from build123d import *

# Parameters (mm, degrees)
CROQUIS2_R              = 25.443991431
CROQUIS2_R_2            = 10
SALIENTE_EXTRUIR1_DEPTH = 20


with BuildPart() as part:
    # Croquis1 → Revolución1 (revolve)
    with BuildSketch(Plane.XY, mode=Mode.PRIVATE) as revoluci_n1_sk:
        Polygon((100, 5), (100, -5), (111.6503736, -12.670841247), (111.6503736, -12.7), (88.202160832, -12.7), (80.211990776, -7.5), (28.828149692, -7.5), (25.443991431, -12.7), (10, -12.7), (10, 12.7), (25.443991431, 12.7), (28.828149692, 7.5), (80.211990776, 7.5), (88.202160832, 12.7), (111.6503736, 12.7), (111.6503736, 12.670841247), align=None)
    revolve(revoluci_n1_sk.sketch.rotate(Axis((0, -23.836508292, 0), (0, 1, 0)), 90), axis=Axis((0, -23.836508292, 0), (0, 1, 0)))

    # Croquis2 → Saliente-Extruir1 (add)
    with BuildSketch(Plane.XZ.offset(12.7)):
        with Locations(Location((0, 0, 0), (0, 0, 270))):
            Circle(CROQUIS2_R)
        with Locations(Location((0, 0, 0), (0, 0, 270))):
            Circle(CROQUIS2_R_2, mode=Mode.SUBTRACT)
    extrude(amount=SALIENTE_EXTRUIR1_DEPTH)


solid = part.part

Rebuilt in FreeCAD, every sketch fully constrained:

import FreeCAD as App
import Part
import Sketcher
Q = App.Units.Quantity


def add_polygon(sketch, points):
    """Adds a closed chain of lines whose ends are joined by coincident constraints."""
    first, n = sketch.GeometryCount, len(points)
    for a, b in zip(points, points[1:] + points[:1]):
        sketch.addGeometry(Part.LineSegment(App.Vector(*a, 0), App.Vector(*b, 0)), False)
    for i in range(n):
        sketch.addConstraint(Sketcher.Constraint("Coincident", first + i, 2, first + (i + 1) % n, 1))

doc = App.newDocument("Part")
body = doc.addObject("PartDesign::Body", "Body")

sketch1 = body.newObject("Sketcher::SketchObject", "Sketch")
sketch1.AttachmentSupport = (doc.getObject("XY_Plane"), [""])
sketch1.MapMode = "FlatFace"
add_polygon(sketch1, [(100, -5), (100, 5), (111.65, 12.671), (111.65, 12.7), (88.202, 12.7), (80.212, 7.5), (28.828, 7.5), (25.444, 12.7), (10, 12.7), (10, -12.7), (25.444, -12.7), (28.828, -7.5), (80.212, -7.5), (88.202, -12.7), (111.65, -12.7), (111.65, -12.671)])
sketch1.addConstraint([
    Sketcher.Constraint("Vertical", 0),
    Sketcher.Constraint("Vertical", 2),
    Sketcher.Constraint("Horizontal", 3),
    Sketcher.Constraint("Horizontal", 5),
    Sketcher.Constraint("Horizontal", 7),
    Sketcher.Constraint("Vertical", 8),
    Sketcher.Constraint("Horizontal", 9),
    Sketcher.Constraint("Horizontal", 11),
    Sketcher.Constraint("Horizontal", 13),
    Sketcher.Constraint("Vertical", 14),
    Sketcher.Constraint("Symmetric", 6, 2, 9, 2, -1),
    Sketcher.Constraint("Symmetric", 5, 2, 10, 2, -1),
    Sketcher.Constraint("Symmetric", 3, 2, 12, 2, -1),
    Sketcher.Constraint("Symmetric", 1, 2, 14, 2, -1),
    Sketcher.Constraint("Perpendicular", 4, 6),
    Sketcher.Constraint("Perpendicular", 10, 12),
    Sketcher.Constraint("Horizontal", 3, 2, 6, 2),
    Sketcher.Constraint("Equal", 1, 15),
    Sketcher.Constraint("DistanceY", 0, 1, 0, 2, Q("10 mm")),
    Sketcher.Constraint("DistanceY", 8, 2, 8, 1, Q("25.4 mm")),
    Sketcher.Constraint("DistanceX", -1, 1, 0, 2, Q("100 mm")),
    Sketcher.Constraint("DistanceX", -1, 1, 7, 2, Q("10 mm")),
    Sketcher.Constraint("DistanceY", 10, 2, 5, 2, Q("15 mm")),
    Sketcher.Constraint("DistanceX", 6, 2, 4, 2, Q("54.767999 mm")),
    Sketcher.Constraint("DistanceX", 5, 2, 5, 1, Q("51.383841 mm")),
    Sketcher.Constraint("DistanceX", 7, 2, 7, 1, Q("15.443991 mm")),
    Sketcher.Constraint("DistanceY", 2, 1, 2, 2, Q("0.029159 mm")),
    Sketcher.Constraint("DistanceX", 3, 2, 3, 1, Q("23.448213 mm")),
])
revolution = body.newObject("PartDesign::Revolution", "Revolution")
revolution.Profile = sketch1
revolution.ReferenceAxis = (sketch1, ["V_Axis"])
revolution.Angle = 360

sketch2 = body.newObject("Sketcher::SketchObject", "Sketch001")
sketch2.AttachmentSupport = (doc.getObject("XZ_Plane"), [""])
sketch2.MapMode = "FlatFace"
sketch2.AttachmentOffset = App.Placement(App.Vector(0, 0, 12.7), App.Rotation())
sketch2.addGeometry([
    Part.Circle(App.Vector(0, 0, 0), App.Vector(0, 0, 1), 25),
    Part.Circle(App.Vector(0, 0, 0), App.Vector(0, 0, 1), 10),
], False)
sketch2.addConstraint([
    Sketcher.Constraint("Coincident", 0, 3, -1, 1),
    Sketcher.Constraint("Coincident", 1, 3, -1, 1),
    Sketcher.Constraint("Diameter", 1, Q("20 mm")),
    Sketcher.Constraint("Diameter", 0, Q("50.887983 mm")),
])
pad1 = body.newObject("PartDesign::Pad", "Pad")
pad1.Profile = sketch2
pad1.Length = 20

doc.recompute()
